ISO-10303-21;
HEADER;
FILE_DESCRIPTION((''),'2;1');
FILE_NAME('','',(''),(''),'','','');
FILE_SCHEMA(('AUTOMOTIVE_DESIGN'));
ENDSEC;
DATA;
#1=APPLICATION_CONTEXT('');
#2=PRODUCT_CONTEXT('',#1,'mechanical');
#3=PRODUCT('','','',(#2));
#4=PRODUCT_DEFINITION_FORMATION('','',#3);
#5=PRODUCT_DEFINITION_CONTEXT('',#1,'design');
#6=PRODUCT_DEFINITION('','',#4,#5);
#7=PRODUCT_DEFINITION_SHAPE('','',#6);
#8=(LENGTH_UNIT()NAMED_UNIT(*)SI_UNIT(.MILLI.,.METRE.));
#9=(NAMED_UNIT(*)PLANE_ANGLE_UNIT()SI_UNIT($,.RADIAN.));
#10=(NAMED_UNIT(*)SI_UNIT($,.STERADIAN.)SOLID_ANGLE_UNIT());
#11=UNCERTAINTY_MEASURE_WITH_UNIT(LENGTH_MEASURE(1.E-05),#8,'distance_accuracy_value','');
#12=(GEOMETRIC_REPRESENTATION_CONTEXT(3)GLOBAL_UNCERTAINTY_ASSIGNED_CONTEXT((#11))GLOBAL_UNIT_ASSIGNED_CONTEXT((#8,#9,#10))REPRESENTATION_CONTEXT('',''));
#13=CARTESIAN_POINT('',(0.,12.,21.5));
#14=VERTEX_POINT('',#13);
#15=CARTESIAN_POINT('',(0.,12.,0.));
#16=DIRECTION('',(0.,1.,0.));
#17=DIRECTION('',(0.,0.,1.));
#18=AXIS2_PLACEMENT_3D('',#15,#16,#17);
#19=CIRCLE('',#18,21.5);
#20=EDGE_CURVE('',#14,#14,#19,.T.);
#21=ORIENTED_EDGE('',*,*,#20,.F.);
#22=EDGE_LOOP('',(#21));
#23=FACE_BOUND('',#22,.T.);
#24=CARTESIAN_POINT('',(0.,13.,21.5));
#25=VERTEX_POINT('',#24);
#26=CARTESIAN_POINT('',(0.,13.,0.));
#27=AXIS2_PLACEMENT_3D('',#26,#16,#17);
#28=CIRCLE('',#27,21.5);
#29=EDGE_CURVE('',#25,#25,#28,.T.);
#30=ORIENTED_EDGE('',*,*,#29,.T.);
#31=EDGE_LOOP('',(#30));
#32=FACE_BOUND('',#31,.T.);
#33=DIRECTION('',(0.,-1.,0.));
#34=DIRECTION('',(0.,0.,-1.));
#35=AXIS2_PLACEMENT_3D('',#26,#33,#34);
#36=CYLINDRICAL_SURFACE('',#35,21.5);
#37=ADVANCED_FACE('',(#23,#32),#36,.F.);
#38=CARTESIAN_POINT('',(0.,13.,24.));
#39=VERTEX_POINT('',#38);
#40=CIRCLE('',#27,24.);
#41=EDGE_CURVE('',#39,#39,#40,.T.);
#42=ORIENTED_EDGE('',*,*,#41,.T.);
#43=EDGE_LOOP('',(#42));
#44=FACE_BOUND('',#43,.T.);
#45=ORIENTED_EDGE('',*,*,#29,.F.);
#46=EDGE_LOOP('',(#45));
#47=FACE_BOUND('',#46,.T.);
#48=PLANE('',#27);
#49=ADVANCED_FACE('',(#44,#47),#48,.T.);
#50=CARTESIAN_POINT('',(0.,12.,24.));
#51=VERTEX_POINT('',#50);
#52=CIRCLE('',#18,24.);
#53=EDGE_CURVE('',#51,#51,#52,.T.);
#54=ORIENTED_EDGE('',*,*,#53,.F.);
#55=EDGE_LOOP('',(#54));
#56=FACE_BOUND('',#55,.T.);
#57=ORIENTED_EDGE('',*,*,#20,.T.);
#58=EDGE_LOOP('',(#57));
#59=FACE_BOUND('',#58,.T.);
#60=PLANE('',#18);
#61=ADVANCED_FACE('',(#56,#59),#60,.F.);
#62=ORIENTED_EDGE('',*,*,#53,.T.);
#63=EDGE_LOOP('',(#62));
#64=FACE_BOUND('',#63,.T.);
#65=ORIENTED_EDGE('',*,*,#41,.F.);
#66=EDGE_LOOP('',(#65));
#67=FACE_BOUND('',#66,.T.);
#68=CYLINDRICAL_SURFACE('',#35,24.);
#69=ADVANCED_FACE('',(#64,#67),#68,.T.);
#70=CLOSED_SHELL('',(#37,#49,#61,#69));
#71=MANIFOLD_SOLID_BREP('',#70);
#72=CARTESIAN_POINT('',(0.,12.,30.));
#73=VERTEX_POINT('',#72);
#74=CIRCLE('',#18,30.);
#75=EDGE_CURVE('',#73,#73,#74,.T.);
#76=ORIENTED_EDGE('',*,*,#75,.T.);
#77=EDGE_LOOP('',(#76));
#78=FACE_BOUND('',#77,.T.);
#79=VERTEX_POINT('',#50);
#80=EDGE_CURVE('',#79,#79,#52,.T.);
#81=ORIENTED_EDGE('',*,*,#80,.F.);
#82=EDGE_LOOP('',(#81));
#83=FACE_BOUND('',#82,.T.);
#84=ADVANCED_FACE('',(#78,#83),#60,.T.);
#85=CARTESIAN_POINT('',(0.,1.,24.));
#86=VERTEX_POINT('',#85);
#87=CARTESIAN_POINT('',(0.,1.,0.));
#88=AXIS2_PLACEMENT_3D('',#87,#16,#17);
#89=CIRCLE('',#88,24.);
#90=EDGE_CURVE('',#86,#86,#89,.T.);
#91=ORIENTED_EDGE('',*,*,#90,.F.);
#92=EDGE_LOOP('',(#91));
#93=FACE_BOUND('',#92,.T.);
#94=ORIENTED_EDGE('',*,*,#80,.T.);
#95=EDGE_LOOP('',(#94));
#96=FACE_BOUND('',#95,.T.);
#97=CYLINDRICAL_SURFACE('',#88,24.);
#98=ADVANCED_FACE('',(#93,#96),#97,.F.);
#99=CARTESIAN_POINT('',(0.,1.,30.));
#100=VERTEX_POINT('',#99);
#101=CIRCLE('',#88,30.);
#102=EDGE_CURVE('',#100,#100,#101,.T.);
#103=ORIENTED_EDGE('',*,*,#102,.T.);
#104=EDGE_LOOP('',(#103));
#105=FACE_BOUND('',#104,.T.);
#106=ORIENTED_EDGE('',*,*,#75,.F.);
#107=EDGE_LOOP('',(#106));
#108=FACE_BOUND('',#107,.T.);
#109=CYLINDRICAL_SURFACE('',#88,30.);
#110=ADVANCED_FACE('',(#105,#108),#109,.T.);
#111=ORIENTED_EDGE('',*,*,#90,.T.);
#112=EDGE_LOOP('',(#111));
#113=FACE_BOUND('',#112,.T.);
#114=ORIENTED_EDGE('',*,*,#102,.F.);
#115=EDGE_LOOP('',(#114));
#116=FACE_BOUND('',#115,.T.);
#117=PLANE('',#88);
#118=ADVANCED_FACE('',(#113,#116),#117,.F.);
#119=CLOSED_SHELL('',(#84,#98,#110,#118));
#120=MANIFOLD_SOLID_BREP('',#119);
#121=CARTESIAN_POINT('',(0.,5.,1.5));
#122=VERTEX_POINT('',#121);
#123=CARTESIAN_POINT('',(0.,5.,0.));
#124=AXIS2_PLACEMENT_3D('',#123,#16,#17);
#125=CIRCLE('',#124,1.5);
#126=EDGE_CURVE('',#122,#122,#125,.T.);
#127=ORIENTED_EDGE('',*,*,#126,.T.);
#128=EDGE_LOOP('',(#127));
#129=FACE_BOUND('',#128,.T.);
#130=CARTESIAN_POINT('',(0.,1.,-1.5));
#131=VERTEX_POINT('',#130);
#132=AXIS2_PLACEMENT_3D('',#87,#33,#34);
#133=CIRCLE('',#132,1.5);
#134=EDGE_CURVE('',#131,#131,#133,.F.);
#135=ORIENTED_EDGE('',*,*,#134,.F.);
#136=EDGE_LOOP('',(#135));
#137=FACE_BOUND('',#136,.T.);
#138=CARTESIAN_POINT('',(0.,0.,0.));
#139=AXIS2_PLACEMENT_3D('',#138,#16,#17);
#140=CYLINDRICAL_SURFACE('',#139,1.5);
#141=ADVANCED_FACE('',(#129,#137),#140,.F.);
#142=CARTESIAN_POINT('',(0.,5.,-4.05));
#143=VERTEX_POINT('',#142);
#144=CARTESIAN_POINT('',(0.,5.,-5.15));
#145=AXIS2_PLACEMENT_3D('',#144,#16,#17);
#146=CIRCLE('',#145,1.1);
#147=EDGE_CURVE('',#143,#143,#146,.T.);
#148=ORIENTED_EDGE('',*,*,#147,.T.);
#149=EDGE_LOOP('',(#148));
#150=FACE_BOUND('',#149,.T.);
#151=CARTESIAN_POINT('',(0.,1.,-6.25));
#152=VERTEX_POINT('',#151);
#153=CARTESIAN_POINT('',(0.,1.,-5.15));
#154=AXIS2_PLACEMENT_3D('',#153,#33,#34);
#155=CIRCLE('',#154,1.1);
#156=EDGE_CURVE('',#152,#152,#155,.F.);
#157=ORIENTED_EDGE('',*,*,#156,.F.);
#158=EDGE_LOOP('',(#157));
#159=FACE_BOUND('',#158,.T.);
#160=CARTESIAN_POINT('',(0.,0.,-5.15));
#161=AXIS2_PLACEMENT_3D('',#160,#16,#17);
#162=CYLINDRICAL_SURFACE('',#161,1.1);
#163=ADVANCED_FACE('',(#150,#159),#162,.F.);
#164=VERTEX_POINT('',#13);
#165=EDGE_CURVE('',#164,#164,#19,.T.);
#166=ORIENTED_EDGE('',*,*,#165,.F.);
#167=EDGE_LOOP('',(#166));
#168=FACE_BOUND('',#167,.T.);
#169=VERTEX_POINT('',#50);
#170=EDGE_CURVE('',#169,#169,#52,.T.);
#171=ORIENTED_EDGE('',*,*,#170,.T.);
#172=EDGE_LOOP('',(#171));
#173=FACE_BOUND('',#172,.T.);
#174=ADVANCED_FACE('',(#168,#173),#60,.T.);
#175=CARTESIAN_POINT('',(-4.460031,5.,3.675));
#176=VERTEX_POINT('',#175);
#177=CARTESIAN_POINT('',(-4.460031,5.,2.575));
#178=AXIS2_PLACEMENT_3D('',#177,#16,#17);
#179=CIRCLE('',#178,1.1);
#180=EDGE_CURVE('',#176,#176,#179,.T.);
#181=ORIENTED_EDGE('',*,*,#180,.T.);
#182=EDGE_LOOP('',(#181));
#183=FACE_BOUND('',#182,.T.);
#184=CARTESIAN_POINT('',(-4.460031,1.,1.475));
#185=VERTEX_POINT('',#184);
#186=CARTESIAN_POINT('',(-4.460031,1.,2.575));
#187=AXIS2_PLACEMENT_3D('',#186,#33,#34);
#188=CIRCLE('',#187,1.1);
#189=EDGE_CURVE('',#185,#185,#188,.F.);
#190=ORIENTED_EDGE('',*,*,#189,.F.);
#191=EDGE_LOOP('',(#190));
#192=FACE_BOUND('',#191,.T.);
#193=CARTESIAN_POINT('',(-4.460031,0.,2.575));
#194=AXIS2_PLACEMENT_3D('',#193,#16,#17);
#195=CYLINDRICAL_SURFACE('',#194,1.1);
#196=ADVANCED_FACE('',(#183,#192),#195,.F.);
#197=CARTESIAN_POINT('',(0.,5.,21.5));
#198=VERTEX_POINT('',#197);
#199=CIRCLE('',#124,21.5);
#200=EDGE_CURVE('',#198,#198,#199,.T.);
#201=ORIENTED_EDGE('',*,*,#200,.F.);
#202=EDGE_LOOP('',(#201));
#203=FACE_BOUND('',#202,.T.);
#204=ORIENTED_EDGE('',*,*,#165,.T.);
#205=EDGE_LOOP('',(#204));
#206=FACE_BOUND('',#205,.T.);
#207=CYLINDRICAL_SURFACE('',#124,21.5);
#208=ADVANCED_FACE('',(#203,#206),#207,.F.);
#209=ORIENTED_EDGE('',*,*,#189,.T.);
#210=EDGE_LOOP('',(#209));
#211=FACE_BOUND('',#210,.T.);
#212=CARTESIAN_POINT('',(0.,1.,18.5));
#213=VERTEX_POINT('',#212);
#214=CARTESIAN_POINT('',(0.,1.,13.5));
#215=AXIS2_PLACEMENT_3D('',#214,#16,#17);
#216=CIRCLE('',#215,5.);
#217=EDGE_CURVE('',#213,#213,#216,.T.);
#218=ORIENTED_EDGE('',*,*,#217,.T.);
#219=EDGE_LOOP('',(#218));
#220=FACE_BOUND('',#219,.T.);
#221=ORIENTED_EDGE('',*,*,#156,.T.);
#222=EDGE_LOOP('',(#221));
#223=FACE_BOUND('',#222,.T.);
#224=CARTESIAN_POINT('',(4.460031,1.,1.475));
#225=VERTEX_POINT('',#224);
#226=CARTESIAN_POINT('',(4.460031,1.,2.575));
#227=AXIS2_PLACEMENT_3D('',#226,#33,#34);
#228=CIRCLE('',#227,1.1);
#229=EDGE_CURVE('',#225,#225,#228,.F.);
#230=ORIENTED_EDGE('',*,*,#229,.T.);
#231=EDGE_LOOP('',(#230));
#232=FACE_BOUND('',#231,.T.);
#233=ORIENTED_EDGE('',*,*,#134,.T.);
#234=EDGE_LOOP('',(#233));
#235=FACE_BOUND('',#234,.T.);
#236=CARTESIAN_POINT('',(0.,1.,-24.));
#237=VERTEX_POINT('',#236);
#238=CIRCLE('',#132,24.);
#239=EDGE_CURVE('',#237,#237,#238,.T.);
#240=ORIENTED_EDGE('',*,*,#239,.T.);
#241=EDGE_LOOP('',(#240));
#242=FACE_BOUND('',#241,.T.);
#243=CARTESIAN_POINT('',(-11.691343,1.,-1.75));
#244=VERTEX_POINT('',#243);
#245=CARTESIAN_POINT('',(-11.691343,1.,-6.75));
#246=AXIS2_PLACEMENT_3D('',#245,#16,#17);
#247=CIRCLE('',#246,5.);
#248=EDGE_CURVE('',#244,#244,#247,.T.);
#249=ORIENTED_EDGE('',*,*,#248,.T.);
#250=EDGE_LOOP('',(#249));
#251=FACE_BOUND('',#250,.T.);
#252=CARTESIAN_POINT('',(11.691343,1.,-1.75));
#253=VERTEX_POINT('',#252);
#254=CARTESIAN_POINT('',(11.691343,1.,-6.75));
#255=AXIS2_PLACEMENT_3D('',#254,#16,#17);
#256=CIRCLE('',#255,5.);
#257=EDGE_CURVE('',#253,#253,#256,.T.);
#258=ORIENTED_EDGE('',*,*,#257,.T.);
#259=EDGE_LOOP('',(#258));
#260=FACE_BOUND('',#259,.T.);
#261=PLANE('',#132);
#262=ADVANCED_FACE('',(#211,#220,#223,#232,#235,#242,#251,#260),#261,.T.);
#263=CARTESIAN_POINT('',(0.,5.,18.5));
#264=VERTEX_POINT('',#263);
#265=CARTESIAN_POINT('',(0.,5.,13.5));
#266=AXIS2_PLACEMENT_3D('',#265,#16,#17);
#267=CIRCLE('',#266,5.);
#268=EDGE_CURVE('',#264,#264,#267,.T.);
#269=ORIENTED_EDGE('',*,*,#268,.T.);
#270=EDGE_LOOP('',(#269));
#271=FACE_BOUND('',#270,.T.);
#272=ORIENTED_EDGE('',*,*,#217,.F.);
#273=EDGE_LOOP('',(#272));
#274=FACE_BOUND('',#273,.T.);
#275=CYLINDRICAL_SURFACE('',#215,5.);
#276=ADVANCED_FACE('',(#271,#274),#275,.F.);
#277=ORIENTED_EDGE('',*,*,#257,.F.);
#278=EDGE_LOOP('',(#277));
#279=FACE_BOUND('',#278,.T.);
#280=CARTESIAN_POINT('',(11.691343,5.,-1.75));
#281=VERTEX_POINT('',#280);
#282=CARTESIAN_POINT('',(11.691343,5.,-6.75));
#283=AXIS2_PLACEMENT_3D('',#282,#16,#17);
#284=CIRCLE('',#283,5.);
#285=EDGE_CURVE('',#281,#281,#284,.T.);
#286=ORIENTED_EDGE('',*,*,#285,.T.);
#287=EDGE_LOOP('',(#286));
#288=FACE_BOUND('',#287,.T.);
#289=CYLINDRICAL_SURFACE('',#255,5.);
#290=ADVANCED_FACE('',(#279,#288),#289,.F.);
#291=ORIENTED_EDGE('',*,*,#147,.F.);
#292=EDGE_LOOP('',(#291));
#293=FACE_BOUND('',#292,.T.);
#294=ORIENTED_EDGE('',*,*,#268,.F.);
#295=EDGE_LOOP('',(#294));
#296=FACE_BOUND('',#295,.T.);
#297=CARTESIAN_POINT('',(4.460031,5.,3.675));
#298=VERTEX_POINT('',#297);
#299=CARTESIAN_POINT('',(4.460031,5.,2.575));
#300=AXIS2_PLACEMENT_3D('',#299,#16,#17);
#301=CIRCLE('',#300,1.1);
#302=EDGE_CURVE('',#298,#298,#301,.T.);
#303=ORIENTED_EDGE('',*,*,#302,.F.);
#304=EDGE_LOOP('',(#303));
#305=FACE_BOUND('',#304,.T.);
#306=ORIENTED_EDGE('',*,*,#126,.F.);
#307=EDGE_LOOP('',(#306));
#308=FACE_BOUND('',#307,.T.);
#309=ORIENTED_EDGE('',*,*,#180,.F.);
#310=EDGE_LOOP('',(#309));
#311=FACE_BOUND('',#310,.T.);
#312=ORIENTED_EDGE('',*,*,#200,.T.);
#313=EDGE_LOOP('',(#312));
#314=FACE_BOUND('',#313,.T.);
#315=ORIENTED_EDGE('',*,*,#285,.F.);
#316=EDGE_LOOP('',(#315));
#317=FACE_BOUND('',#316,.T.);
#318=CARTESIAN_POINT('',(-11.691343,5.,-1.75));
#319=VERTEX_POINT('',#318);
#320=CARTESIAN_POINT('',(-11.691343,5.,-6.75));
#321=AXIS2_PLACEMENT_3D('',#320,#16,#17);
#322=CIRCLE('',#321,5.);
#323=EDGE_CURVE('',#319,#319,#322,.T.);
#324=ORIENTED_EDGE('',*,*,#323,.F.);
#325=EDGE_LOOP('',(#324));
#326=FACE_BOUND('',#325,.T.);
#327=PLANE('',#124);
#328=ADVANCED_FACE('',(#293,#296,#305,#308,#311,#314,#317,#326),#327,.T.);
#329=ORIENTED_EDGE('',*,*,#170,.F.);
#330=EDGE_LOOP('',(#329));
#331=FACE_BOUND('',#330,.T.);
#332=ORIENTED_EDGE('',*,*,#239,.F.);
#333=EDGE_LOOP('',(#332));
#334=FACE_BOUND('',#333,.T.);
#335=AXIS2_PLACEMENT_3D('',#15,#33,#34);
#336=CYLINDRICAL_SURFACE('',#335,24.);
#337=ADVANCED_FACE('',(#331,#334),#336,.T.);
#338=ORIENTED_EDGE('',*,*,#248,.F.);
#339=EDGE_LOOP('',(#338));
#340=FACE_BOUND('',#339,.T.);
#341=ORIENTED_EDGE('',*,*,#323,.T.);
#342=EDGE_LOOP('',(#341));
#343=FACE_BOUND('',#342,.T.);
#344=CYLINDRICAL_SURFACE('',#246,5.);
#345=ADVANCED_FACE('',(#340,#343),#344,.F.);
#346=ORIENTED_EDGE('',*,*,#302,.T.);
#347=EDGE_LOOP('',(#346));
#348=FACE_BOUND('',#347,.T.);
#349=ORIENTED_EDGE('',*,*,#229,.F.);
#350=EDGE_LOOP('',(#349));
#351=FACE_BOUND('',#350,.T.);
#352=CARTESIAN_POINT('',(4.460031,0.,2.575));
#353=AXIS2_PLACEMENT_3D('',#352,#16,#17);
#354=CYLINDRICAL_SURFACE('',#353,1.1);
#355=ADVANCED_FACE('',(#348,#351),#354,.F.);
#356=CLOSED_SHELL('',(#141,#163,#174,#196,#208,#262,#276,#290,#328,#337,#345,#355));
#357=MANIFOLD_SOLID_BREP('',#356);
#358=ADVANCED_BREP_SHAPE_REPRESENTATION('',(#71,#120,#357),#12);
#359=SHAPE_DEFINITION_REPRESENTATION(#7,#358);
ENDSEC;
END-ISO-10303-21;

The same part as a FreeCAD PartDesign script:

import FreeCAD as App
import Part
import Sketcher
from FreeCAD import Vector
Q = App.Units.Quantity

doc = App.newDocument("Part")
params = doc.addObject("Spreadsheet::Sheet", "Params")
for row, (alias, value) in enumerate([
    ("sketch1_diameter", "48 mm"),
    ("pad1_length", "12 mm"),
    ("sketch2_diameter", "43 mm"),
    ("pocket1_length", "7 mm"),
    ("sketch3_diameter", "3 mm"),
    ("sketch3_diameter2", "2.2 mm"),
    ("sketch4_diameter", "48 mm"),
    ("pocket3_length", "1 mm"),
    ("sketch5_diameter", "10 mm"),
    ("sketch6_diameter", "60 mm"),
    ("sketch6_diameter2", "48 mm"),
    ("pad2_length", "11 mm"),
    ("sketch7_diameter", "48 mm"),
    ("sketch7_diameter2", "43 mm"),
    ("pad3_length", "1 mm"),
], start=1):
    params.set(f"A{row}", alias)
    params.set(f"B{row}", "=" + value)
    params.setAlias(f"B{row}", alias)

body = doc.addObject("PartDesign::Body", "Body")

# Sketch on XZ plane
sketch1 = body.newObject("Sketcher::SketchObject", "Sketch")
sketch1.AttachmentSupport = (doc.getObject("XZ_Plane"), [""])
sketch1.MapMode = "FlatFace"
sketch1.addGeometry(Part.Circle(Vector(0, 0, 0), Vector(0, 0, 1), 24), False)
sketch1.addConstraint(Sketcher.Constraint("Coincident", 0, 3, -1, 1))
sketch1.addConstraint(Sketcher.Constraint("Diameter", 0, Q("48 mm")))
sketch1.setExpression("Constraints[1]", "Params.sketch1_diameter")
pad1 = body.newObject("PartDesign::Pad", "Pad")
pad1.Profile = sketch1
pad1.setExpression("Length", "Params.pad1_length")
pad1.Reversed = True

# Sketch on XZ plane
sketch2 = body.newObject("Sketcher::SketchObject", "Sketch001")
sketch2.AttachmentSupport = (doc.getObject("XZ_Plane"), [""])
sketch2.MapMode = "FlatFace"
sketch2.AttachmentOffset = App.Placement(Vector(0, 0, -12), App.Rotation())
sketch2.addGeometry(Part.Circle(Vector(0, 0, 0), Vector(0, 0, 1), 21.5), False)
sketch2.addConstraint(Sketcher.Constraint("Coincident", 0, 3, -1, 1))
sketch2.addConstraint(Sketcher.Constraint("Diameter", 0, Q("43 mm")))
sketch2.setExpression("Constraints[1]", "Params.sketch2_diameter")
pocket1 = body.newObject("PartDesign::Pocket", "Pocket")
pocket1.Profile = sketch2
pocket1.setExpression("Length", "Params.pocket1_length")
pocket1.Reversed = True

# Sketch on XZ plane
sketch3 = body.newObject("Sketcher::SketchObject", "Sketch002")
sketch3.AttachmentSupport = (doc.getObject("XZ_Plane"), [""])
sketch3.MapMode = "FlatFace"
sketch3.AttachmentOffset = App.Placement(Vector(0, 0, -5), App.Rotation())
sketch3.addGeometry(Part.Circle(Vector(0, -5.15, 0), Vector(0, 0, 1), 1.1), False)
sketch3.addGeometry(Part.Circle(Vector(4.460031, 2.575, 0), Vector(0, 0, 1), 1.1), False)
sketch3.addGeometry(Part.Circle(Vector(-4.460031, 2.575, 0), Vector(0, 0, 1), 1.1), False)
sketch3.addGeometry(Part.Circle(Vector(0, 0, 0), Vector(0, 0, 1), 1.5), False)
sketch3.addConstraint(Sketcher.Constraint("Coincident", 3, 3, -1, 1))
sketch3.addConstraint(Sketcher.Constraint("Equal", 0, 1))
sketch3.addConstraint(Sketcher.Constraint("Equal", 1, 2))
sketch3.addConstraint(Sketcher.Constraint("Symmetric", 1, 3, 2, 3, -2))
sketch3.addConstraint(Sketcher.Constraint("PointOnObject", 0, 3, -2))
sketch3.addConstraint(Sketcher.Constraint("Diameter", 3, Q("3 mm")))
sketch3.addConstraint(Sketcher.Constraint("Diameter", 0, Q("2.2 mm")))
sketch3.addConstraint(Sketcher.Constraint("DistanceY", 0, 3, -1, 1, Q("5.15 mm")))
sketch3.addConstraint(Sketcher.Constraint("DistanceY", -1, 1, 1, 3, Q("2.575 mm")))
sketch3.addConstraint(Sketcher.Constraint("DistanceX", -1, 1, 1, 3, Q("4.460031 mm")))
sketch3.setExpression("Constraints[5]", "Params.sketch3_diameter")
sketch3.setExpression("Constraints[6]", "Params.sketch3_diameter2")
pocket2 = body.newObject("PartDesign::Pocket", "Pocket001")
pocket2.Profile = sketch3
pocket2.Type = "ThroughAll"
pocket2.Reversed = True

# Sketch on XZ plane
sketch4 = body.newObject("Sketcher::SketchObject", "Sketch003")
sketch4.AttachmentSupport = (doc.getObject("XZ_Plane"), [""])
sketch4.MapMode = "FlatFace"
sketch4.addGeometry(Part.Circle(Vector(0, 0, 0), Vector(0, 0, 1), 24), False)
sketch4.addConstraint(Sketcher.Constraint("Coincident", 0, 3, -1, 1))
sketch4.addConstraint(Sketcher.Constraint("Diameter", 0, Q("48 mm")))
sketch4.setExpression("Constraints[1]", "Params.sketch4_diameter")
pocket3 = body.newObject("PartDesign::Pocket", "Pocket002")
pocket3.Profile = sketch4
pocket3.setExpression("Length", "Params.pocket3_length")

# Sketch on XZ plane
sketch5 = body.newObject("Sketcher::SketchObject", "Sketch004")
sketch5.AttachmentSupport = (doc.getObject("XZ_Plane"), [""])
sketch5.MapMode = "FlatFace"
sketch5.AttachmentOffset = App.Placement(Vector(0, 0, -5), App.Rotation())
sketch5.addGeometry(Part.Circle(Vector(-11.691343, -6.75, 0), Vector(0, 0, 1), 5), False)
sketch5.addGeometry(Part.Circle(Vector(11.691343, -6.75, 0), Vector(0, 0, 1), 5), False)
sketch5.addGeometry(Part.Circle(Vector(0, 13.5, 0), Vector(0, 0, 1), 5), False)
sketch5.addConstraint(Sketcher.Constraint("Equal", 0, 1))
sketch5.addConstraint(Sketcher.Constraint("Equal", 1, 2))
sketch5.addConstraint(Sketcher.Constraint("Symmetric", 0, 3, 1, 3, -2))
sketch5.addConstraint(Sketcher.Constraint("PointOnObject", 2, 3, -2))
sketch5.addConstraint(Sketcher.Constraint("Diameter", 0, Q("10 mm")))
sketch5.addConstraint(Sketcher.Constraint("DistanceY", -1, 1, 2, 3, Q("13.5 mm")))
sketch5.addConstraint(Sketcher.Constraint("DistanceY", 0, 3, -1, 1, Q("6.75 mm")))
sketch5.addConstraint(Sketcher.Constraint("DistanceX", 0, 3, -1, 1, Q("11.691343 mm")))
sketch5.setExpression("Constraints[4]", "Params.sketch5_diameter")
pocket4 = body.newObject("PartDesign::Pocket", "Pocket003")
pocket4.Profile = sketch5
pocket4.Type = "ThroughAll"
pocket4.Reversed = True
body2 = doc.addObject("PartDesign::Body", "Body001")

# Sketch on XZ plane
sketch6 = body2.newObject("Sketcher::SketchObject", "Sketch005")
sketch6.AttachmentSupport = (doc.getObject("XZ_Plane001"), [""])
sketch6.MapMode = "FlatFace"
sketch6.AttachmentOffset = App.Placement(Vector(0, 0, -12), App.Rotation())
sketch6.addGeometry(Part.Circle(Vector(0, 0, 0), Vector(0, 0, 1), 30), False)
sketch6.addGeometry(Part.Circle(Vector(0, 0, 0), Vector(0, 0, 1), 24), False)
sketch6.addConstraint(Sketcher.Constraint("Coincident", 0, 3, -1, 1))
sketch6.addConstraint(Sketcher.Constraint("Coincident", 1, 3, -1, 1))
sketch6.addConstraint(Sketcher.Constraint("Diameter", 0, Q("60 mm")))
sketch6.addConstraint(Sketcher.Constraint("Diameter", 1, Q("48 mm")))
sketch6.setExpression("Constraints[2]", "Params.sketch6_diameter")
sketch6.setExpression("Constraints[3]", "Params.sketch6_diameter2")
pad2 = body2.newObject("PartDesign::Pad", "Pad001")
pad2.Profile = sketch6
pad2.setExpression("Length", "Params.pad2_length")
body3 = doc.addObject("PartDesign::Body", "Body002")

# Sketch on XZ plane
sketch7 = body3.newObject("Sketcher::SketchObject", "Sketch006")
sketch7.AttachmentSupport = (doc.getObject("XZ_Plane002"), [""])
sketch7.MapMode = "FlatFace"
sketch7.AttachmentOffset = App.Placement(Vector(0, 0, -12), App.Rotation())
sketch7.addGeometry(Part.Circle(Vector(0, 0, 0), Vector(0, 0, 1), 24), False)
sketch7.addGeometry(Part.Circle(Vector(0, 0, 0), Vector(0, 0, 1), 21.5), False)
sketch7.addConstraint(Sketcher.Constraint("Coincident", 0, 3, -1, 1))
sketch7.addConstraint(Sketcher.Constraint("Coincident", 1, 3, -1, 1))
sketch7.addConstraint(Sketcher.Constraint("Diameter", 0, Q("48 mm")))
sketch7.addConstraint(Sketcher.Constraint("Diameter", 1, Q("43 mm")))
sketch7.setExpression("Constraints[2]", "Params.sketch7_diameter")
sketch7.setExpression("Constraints[3]", "Params.sketch7_diameter2")
pad3 = body3.newObject("PartDesign::Pad", "Pad002")
pad3.Profile = sketch7
pad3.setExpression("Length", "Params.pad3_length")
pad3.Reversed = True

doc.recompute()
